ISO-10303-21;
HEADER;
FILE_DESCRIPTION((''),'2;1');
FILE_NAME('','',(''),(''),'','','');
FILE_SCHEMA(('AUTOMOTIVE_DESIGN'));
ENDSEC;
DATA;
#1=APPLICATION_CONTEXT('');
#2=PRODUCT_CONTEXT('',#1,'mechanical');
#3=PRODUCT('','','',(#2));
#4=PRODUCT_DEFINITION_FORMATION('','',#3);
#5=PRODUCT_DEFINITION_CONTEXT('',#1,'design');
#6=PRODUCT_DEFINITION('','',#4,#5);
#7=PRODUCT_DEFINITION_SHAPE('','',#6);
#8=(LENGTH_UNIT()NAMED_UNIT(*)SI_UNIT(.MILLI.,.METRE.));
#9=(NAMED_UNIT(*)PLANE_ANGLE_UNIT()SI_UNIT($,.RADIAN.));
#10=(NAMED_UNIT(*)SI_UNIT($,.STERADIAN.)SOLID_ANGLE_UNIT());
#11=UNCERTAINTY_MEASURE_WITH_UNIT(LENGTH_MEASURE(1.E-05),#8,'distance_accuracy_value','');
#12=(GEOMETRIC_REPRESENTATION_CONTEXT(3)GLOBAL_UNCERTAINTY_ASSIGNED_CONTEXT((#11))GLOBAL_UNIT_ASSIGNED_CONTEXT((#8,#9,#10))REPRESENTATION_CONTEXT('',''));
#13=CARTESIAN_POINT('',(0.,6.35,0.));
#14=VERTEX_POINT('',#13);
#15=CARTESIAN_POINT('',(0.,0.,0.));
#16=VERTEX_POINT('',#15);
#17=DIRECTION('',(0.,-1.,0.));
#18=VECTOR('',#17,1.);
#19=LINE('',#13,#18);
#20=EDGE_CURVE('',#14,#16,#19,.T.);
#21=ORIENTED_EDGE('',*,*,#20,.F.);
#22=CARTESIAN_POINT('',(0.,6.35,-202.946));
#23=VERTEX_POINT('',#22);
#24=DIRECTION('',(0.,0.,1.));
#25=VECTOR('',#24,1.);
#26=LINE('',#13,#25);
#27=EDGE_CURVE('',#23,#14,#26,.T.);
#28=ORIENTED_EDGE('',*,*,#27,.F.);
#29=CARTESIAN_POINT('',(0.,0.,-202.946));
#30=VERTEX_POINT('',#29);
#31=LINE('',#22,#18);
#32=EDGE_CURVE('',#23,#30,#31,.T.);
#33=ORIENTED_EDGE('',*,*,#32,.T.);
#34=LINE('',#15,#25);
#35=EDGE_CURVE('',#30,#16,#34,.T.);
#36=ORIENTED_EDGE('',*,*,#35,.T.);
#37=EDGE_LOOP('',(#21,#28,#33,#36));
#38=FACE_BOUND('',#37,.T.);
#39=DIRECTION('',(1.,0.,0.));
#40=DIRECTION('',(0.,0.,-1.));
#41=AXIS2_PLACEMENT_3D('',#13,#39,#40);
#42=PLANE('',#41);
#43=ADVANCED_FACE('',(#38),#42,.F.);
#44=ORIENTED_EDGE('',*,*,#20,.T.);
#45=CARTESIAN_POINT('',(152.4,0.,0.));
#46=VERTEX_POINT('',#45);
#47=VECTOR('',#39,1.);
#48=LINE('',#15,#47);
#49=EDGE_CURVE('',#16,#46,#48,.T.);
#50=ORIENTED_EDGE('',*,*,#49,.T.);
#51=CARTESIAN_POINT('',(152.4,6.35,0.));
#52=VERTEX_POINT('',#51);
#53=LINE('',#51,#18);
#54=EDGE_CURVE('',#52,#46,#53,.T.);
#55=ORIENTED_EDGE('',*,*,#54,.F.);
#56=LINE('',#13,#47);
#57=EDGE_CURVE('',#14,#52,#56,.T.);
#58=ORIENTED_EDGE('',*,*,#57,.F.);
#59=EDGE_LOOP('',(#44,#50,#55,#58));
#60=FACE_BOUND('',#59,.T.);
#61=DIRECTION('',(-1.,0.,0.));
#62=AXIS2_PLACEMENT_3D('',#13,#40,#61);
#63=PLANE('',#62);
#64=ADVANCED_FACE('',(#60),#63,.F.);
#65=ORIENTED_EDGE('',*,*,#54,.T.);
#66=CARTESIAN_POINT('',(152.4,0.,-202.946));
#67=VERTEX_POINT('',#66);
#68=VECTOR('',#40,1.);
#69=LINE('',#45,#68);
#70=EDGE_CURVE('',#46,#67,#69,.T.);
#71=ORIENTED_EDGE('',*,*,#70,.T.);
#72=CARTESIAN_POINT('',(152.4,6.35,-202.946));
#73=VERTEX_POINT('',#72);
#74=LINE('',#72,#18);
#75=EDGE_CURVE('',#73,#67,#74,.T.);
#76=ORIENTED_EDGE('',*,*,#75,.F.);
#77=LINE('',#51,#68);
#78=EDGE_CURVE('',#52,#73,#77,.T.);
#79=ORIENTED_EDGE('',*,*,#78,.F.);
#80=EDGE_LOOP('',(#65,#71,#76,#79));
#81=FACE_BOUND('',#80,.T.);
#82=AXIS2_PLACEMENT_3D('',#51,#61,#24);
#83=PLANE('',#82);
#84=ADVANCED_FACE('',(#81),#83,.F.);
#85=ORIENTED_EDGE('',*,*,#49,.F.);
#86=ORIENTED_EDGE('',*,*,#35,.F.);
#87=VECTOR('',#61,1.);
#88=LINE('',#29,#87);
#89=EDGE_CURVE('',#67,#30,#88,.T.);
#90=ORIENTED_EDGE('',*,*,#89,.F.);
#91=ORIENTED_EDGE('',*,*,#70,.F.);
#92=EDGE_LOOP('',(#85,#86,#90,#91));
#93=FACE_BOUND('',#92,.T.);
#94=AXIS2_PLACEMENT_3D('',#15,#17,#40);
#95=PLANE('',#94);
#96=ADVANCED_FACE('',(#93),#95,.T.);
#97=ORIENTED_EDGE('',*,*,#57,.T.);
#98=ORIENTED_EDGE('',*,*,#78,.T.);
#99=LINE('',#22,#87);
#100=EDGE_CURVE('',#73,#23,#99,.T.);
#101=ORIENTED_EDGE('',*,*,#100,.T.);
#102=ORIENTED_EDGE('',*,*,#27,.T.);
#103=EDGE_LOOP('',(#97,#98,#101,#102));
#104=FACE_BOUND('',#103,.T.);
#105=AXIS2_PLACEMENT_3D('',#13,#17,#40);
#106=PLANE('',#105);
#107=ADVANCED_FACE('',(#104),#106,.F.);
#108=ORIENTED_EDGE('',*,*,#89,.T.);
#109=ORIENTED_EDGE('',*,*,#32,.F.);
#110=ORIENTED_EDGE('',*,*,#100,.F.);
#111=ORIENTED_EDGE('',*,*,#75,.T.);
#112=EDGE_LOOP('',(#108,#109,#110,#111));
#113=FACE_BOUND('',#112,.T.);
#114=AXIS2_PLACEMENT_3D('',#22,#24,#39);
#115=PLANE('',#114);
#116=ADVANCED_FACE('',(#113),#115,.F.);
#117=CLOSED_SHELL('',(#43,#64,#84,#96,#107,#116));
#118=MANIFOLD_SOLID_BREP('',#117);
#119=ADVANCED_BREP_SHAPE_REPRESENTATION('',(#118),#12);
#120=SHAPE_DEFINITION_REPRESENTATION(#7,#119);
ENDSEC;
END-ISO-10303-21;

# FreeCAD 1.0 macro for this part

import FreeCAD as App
import Part
import Sketcher

V = App.Vector
Q = App.Units.Quantity


def add_polygon(sketch, points):
    """Adds a closed chain of lines whose ends are joined by coincident constraints."""
    first, n = sketch.GeometryCount, len(points)
    for a, b in zip(points, points[1:] + points[:1]):
        sketch.addGeometry(Part.LineSegment(App.Vector(*a, 0), App.Vector(*b, 0)), False)
    for i in range(n):
        sketch.addConstraint(Sketcher.Constraint("Coincident", first + i, 2, first + (i + 1) % n, 1))

doc = App.newDocument("Part")
params = doc.addObject("Spreadsheet::Sheet", "Params")
for row, (alias, value) in enumerate([
    ("sketch1_width", "6 in"),
    ("sketch1_height", "7.99 in"),
    ("pad1_length", "0.25 in"),
], start=1):
    params.set(f"A{row}", alias)
    params.set(f"B{row}", "=" + value)
    params.setAlias(f"B{row}", alias)

body = doc.addObject("PartDesign::Body", "Body")

sketch1 = body.newObject("Sketcher::SketchObject", "Sketch")
sketch1.AttachmentSupport = (doc.getObject("XZ_Plane"), [""])
sketch1.MapMode = "FlatFace"
add_polygon(sketch1, [(0, -202.946), (0, 0), (152.4, 0), (152.4, -202.946)])
sketch1.addConstraint(Sketcher.Constraint("Vertical", 0))
sketch1.addConstraint(Sketcher.Constraint("Horizontal", 1))
sketch1.addConstraint(Sketcher.Constraint("Vertical", 2))
sketch1.addConstraint(Sketcher.Constraint("Horizontal", 3))
sketch1.addConstraint(Sketcher.Constraint("Coincident", 0, 2, -1, 1))
sketch1.addConstraint(Sketcher.Constraint("DistanceX", 1, 1, 1, 2, Q("6 in")))
sketch1.addConstraint(Sketcher.Constraint("DistanceY", 0, 1, 0, 2, Q("7.99 in")))
sketch1.setExpression("Constraints[9]", "Params.sketch1_width")
sketch1.setExpression("Constraints[10]", "Params.sketch1_height")
pad1 = body.newObject("PartDesign::Pad", "Pad")
pad1.Profile = sketch1
pad1.setExpression("Length", "Params.pad1_length")
pad1.Reversed = True

doc.recompute()
